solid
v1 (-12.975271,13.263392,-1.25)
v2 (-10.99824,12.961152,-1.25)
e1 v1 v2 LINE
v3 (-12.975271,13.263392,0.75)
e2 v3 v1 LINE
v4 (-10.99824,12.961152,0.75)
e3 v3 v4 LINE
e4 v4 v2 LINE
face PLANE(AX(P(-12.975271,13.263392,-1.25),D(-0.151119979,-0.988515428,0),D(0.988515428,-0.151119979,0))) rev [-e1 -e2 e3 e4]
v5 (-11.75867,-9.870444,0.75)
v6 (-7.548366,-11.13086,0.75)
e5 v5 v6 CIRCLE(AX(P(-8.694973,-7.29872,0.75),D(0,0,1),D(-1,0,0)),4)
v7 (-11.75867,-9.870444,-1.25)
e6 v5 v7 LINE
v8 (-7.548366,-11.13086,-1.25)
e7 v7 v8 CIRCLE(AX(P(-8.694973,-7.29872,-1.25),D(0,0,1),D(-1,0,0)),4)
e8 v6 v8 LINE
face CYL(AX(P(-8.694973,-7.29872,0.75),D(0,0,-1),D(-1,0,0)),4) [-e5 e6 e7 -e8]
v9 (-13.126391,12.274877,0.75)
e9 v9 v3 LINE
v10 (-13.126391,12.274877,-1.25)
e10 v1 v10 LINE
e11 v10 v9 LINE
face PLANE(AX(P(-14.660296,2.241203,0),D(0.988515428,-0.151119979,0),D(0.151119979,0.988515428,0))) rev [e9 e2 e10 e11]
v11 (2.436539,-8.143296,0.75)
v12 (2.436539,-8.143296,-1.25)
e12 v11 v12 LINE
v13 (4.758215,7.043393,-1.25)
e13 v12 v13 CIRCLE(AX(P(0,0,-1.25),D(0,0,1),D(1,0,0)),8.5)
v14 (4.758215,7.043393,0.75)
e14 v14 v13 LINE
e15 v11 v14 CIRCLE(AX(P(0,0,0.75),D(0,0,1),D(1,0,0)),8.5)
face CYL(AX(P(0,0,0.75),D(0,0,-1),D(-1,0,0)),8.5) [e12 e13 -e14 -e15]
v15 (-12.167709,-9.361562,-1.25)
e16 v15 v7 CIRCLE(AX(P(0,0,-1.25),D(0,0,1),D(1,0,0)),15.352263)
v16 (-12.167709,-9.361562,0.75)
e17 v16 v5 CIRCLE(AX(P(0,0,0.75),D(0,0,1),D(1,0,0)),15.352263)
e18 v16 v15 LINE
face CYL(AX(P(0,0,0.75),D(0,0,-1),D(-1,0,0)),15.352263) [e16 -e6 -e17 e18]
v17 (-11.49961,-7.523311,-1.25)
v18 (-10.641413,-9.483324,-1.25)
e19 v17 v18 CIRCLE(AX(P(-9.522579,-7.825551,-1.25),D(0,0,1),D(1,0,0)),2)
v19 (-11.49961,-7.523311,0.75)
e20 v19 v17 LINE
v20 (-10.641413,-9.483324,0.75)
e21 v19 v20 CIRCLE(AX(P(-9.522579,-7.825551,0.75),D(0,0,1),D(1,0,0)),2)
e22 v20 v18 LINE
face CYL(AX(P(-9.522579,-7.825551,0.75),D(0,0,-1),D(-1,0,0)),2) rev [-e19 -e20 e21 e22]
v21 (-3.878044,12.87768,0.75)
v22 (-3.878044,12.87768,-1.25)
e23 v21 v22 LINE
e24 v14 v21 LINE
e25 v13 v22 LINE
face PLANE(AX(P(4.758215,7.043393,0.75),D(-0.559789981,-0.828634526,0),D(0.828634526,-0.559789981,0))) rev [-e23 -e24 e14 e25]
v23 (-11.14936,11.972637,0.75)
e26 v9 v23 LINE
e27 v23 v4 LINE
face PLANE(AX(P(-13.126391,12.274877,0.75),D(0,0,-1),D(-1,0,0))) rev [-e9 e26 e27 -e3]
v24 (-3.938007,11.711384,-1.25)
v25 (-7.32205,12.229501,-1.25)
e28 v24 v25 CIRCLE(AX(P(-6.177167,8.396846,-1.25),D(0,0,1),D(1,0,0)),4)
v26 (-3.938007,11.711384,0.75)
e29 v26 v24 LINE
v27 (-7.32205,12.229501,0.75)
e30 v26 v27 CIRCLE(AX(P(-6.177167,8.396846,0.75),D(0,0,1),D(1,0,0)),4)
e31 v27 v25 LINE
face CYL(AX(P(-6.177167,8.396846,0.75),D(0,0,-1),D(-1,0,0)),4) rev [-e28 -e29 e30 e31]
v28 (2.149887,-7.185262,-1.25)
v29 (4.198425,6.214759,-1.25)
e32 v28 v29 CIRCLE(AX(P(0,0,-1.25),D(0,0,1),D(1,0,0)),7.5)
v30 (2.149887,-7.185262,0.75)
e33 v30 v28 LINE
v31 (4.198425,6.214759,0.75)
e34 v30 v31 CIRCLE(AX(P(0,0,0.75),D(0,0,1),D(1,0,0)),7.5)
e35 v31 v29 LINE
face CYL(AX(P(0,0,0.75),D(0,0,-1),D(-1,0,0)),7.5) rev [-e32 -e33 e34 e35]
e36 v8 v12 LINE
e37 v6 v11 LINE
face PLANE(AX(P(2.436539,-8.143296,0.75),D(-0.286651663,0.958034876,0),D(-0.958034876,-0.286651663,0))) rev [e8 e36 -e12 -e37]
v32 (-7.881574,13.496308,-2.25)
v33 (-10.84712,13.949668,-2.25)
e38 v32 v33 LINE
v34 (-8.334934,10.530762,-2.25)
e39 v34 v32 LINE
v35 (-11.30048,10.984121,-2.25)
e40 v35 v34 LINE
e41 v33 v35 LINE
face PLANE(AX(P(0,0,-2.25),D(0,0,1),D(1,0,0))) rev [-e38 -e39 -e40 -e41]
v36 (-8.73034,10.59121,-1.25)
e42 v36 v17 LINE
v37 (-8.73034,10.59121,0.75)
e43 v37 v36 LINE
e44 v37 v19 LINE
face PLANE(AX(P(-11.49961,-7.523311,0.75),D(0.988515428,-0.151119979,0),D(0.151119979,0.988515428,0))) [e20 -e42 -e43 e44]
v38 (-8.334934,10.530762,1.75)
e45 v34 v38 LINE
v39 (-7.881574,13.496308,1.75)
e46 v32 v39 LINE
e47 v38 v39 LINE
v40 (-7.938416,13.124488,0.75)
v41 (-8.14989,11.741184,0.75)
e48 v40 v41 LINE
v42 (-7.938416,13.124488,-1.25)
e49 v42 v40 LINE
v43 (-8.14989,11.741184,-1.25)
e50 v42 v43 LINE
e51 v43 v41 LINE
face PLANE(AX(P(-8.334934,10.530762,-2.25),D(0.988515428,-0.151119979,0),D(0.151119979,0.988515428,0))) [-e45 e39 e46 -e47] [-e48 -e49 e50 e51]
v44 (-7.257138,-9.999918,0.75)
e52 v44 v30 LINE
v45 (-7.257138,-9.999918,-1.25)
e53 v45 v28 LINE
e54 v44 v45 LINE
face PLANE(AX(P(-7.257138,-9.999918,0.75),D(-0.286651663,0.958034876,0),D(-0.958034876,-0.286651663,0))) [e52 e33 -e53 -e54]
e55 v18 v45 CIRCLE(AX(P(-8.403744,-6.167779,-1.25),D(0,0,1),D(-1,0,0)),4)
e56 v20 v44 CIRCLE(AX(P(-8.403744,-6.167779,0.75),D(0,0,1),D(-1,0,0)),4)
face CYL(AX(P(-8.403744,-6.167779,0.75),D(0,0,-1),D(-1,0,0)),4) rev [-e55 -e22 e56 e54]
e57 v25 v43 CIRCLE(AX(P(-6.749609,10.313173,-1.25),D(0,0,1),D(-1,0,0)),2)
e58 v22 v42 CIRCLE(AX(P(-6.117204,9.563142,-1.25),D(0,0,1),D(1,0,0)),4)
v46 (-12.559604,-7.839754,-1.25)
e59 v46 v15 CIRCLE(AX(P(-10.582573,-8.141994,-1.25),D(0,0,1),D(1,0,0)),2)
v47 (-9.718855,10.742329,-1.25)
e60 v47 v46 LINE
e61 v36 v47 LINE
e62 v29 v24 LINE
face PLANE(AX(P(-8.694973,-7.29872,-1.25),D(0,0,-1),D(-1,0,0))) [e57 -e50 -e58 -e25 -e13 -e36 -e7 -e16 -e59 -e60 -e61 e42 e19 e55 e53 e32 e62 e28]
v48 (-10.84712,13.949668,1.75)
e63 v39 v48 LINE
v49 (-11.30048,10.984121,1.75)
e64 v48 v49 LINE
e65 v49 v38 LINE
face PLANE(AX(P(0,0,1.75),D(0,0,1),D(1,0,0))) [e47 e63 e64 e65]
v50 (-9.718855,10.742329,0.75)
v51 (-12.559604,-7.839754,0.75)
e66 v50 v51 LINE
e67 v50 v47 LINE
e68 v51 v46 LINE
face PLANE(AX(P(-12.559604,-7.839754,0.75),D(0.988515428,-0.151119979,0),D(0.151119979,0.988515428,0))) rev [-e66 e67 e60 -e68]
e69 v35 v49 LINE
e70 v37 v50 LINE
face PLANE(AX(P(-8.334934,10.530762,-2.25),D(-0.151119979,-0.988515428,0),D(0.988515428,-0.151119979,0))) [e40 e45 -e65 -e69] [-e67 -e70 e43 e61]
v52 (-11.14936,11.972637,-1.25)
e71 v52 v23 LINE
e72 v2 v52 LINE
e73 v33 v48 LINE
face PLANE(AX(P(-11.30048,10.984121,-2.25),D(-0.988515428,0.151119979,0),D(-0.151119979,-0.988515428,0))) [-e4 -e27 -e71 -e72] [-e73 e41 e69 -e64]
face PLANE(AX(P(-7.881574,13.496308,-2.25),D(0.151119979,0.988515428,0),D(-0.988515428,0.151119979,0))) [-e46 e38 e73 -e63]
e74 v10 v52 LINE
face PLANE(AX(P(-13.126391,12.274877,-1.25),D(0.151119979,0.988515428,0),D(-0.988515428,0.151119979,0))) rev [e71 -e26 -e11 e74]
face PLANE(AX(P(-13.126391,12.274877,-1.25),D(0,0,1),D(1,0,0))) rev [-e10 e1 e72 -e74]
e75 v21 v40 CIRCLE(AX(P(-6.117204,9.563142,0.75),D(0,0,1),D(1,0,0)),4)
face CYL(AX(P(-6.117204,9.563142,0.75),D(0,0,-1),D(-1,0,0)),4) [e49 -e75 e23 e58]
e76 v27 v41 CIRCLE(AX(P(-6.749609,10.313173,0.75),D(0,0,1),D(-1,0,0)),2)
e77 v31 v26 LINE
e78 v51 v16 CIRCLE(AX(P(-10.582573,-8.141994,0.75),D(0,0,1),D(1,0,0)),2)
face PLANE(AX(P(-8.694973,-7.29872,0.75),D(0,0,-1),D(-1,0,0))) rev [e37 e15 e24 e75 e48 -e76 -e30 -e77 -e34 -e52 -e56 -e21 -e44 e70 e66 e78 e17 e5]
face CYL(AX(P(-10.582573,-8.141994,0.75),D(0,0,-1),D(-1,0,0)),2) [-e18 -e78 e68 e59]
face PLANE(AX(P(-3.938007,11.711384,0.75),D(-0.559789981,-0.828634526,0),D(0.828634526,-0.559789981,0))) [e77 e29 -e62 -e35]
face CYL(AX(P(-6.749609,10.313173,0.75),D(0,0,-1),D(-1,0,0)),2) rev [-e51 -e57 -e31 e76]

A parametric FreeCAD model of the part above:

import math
import FreeCAD as App
import Part
import Sketcher
Q = App.Units.Quantity

doc = App.newDocument("Part")
body = doc.addObject("PartDesign::Body", "Body")

# Sketch on XY plane
sketch1 = body.newObject("Sketcher::SketchObject", "Sketch")
sketch1.AttachmentSupport = (doc.getObject("XY_Plane"), [""])
sketch1.MapMode = "FlatFace"
sketch1.AttachmentOffset = App.Placement(App.Vector(0, 0, -1.25), App.Rotation())
sketch1.addGeometry(Part.LineSegment(App.Vector(-7.548366, -11.13086, 0), App.Vector(2.436539, -8.143296, 0)), False)
sketch1.addGeometry(Part.ArcOfCircle(Part.Circle(App.Vector(0, 0, 0), App.Vector(0, 0, 1), 8.5), math.radians(-73.342398), math.radians(55.958725)), False)
sketch1.addGeometry(Part.LineSegment(App.Vector(4.758215, 7.043393, 0), App.Vector(-3.878044, 12.87768, 0)), False)
sketch1.addGeometry(Part.ArcOfCircle(Part.Circle(App.Vector(-6.117204, 9.563142, 0), App.Vector(0, 0, 1), 4), math.radians(55.958725), math.radians(122.605611)), False)
sketch1.addGeometry(Part.ArcOfCircle(Part.Circle(App.Vector(0, -0.000001, 0), App.Vector(0, 0, 1), 15.352263), math.radians(122.605611), math.radians(125.042453)), False)
sketch1.addGeometry(Part.ArcOfCircle(Part.Circle(App.Vector(-7.666645, 10.931856, 0), App.Vector(0, 0, 1), 2), math.radians(125.042453), math.radians(171.308163)), False)
sketch1.addGeometry(Part.LineSegment(App.Vector(-9.643676, 11.234096, 0), App.Vector(-12.559604, -7.839754, 0)), False)
sketch1.addGeometry(Part.ArcOfCircle(Part.Circle(App.Vector(-10.582573, -8.141994, 0), App.Vector(0, 0, 1), 2), math.radians(171.308163), math.radians(217.573874)), False)
sketch1.addGeometry(Part.ArcOfCircle(Part.Circle(App.Vector(0.000002, 0.000001, 0), App.Vector(0, 0, 1), 15.352265), math.radians(-142.426126), math.radians(-139.989285)), False)
sketch1.addGeometry(Part.ArcOfCircle(Part.Circle(App.Vector(-8.694973, -7.29872, 0), App.Vector(0, 0, 1), 4), math.radians(-139.989284), math.radians(-73.342398)), False)
sketch1.addGeometry(Part.ArcOfCircle(Part.Circle(App.Vector(-8.403744, -6.167779, 0), App.Vector(0, 0, 1), 4), math.radians(-124.015508), math.radians(-73.342398)), False)
sketch1.addGeometry(Part.ArcOfCircle(Part.Circle(App.Vector(-9.522579, -7.825551, 0), App.Vector(0, 0, 1), 2), math.radians(171.308163), math.radians(235.984492)), False)
sketch1.addGeometry(Part.LineSegment(App.Vector(-11.49961, -7.523311, 0), App.Vector(-8.72664, 10.615413, 0)), False)
sketch1.addGeometry(Part.ArcOfCircle(Part.Circle(App.Vector(-6.749609, 10.313173, 0), App.Vector(0, 0, 1), 2), math.radians(106.631835), math.radians(171.308163)), False)
sketch1.addGeometry(Part.ArcOfCircle(Part.Circle(App.Vector(-6.177167, 8.396846, 0), App.Vector(0, 0, 1), 4), math.radians(55.958725), math.radians(106.631835)), False)
sketch1.addGeometry(Part.LineSegment(App.Vector(-3.938007, 11.711384, 0), App.Vector(4.198425, 6.214759, 0)), False)
sketch1.addGeometry(Part.ArcOfCircle(Part.Circle(App.Vector(0, 0, 0), App.Vector(0, 0, 1), 7.5), math.radians(-73.342398), math.radians(55.958725)), False)
sketch1.addGeometry(Part.LineSegment(App.Vector(2.149887, -7.185262, 0), App.Vector(-7.257138, -9.999918, 0)), False)
sketch1.addConstraint(Sketcher.Constraint("Tangent", 0, 2, 1, 1))
sketch1.addConstraint(Sketcher.Constraint("Tangent", 1, 2, 2, 1))
sketch1.addConstraint(Sketcher.Constraint("Tangent", 2, 2, 3, 1))
sketch1.addConstraint(Sketcher.Constraint("Tangent", 3, 2, 4, 1))
sketch1.addConstraint(Sketcher.Constraint("Tangent", 4, 2, 5, 1))
sketch1.addConstraint(Sketcher.Constraint("Tangent", 5, 2, 6, 1))
sketch1.addConstraint(Sketcher.Constraint("Tangent", 6, 2, 7, 1))
sketch1.addConstraint(Sketcher.Constraint("Tangent", 7, 2, 8, 1))
sketch1.addConstraint(Sketcher.Constraint("Tangent", 8, 2, 9, 1))
sketch1.addConstraint(Sketcher.Constraint("Tangent", 9, 2, 0, 1))
sketch1.addConstraint(Sketcher.Constraint("Tangent", 10, 1, 11, 2))
sketch1.addConstraint(Sketcher.Constraint("Tangent", 11, 1, 12, 1))
sketch1.addConstraint(Sketcher.Constraint("Tangent", 12, 2, 13, 2))
sketch1.addConstraint(Sketcher.Constraint("Tangent", 13, 1, 14, 2))
sketch1.addConstraint(Sketcher.Constraint("Tangent", 14, 1, 15, 1))
sketch1.addConstraint(Sketcher.Constraint("Tangent", 15, 2, 16, 2))
sketch1.addConstraint(Sketcher.Constraint("Tangent", 16, 1, 17, 1))
sketch1.addConstraint(Sketcher.Constraint("Tangent", 17, 2, 10, 2))
sketch1.addConstraint(Sketcher.Constraint("Coincident", 1, 3, -1, 1))
sketch1.addConstraint(Sketcher.Constraint("Coincident", 4, 3, -1, 1))
sketch1.addConstraint(Sketcher.Constraint("Coincident", 8, 3, -1, 1))
sketch1.addConstraint(Sketcher.Constraint("Coincident", 16, 3, -1, 1))
sketch1.addConstraint(Sketcher.Constraint("Equal", 5, 7))
sketch1.addConstraint(Sketcher.Constraint("Equal", 4, 8))
sketch1.addConstraint(Sketcher.Constraint("Equal", 3, 9))
sketch1.addConstraint(Sketcher.Constraint("Equal", 9, 10))
sketch1.addConstraint(Sketcher.Constraint("Equal", 7, 11))
sketch1.addConstraint(Sketcher.Constraint("Equal", 11, 13))
sketch1.addConstraint(Sketcher.Constraint("Equal", 10, 14))
sketch1.addConstraint(Sketcher.Constraint("Parallel", 6, 12))
sketch1.addConstraint(Sketcher.Constraint("Parallel", 2, 15))
sketch1.addConstraint(Sketcher.Constraint("Parallel", 0, 17))
sketch1.addConstraint(Sketcher.Constraint("Equal", 15, 17))
sketch1.addConstraint(Sketcher.Constraint("Radius", 3, Q("4 mm")))
sketch1.addConstraint(Sketcher.Constraint("Radius", 5, Q("2 mm")))
sketch1.addConstraint(Sketcher.Constraint("Radius", 1, Q("8.5 mm")))
sketch1.addConstraint(Sketcher.Constraint("Radius", 16, Q("7.5 mm")))
sketch1.addConstraint(Sketcher.Constraint("Radius", 4, Q("15.352263 mm")))
sketch1.addConstraint(Sketcher.Constraint("DistanceY", -1, 1, 13, 1, Q("12.229501 mm")))
sketch1.addConstraint(Sketcher.Constraint("DistanceX", 7, 3, 9, 3, Q("1.8876 mm")))
sketch1.addConstraint(Sketcher.Constraint("DistanceX", 5, 3, 2, 2, Q("3.788601 mm")))
sketch1.addConstraint(Sketcher.Constraint("DistanceY", 3, 3, 3, 2, Q("3.369599 mm")))
sketch1.addConstraint(Sketcher.Constraint("DistanceY", 9, 2, 7, 2, Q("1.769298 mm")))
sketch1.addConstraint(Sketcher.Constraint("DistanceX", 7, 2, 11, 1, Q("0.668099 mm")))
pad1 = body.newObject("PartDesign::Pad", "Pad")
pad1.Profile = sketch1
pad1.Length = 2

# Sketch on XY plane
sketch2 = body.newObject("Sketcher::SketchObject", "Sketch001")
sketch2.AttachmentSupport = (doc.getObject("XY_Plane"), [""])
sketch2.MapMode = "FlatFace"
sketch2.AttachmentOffset = App.Placement(App.Vector(0, 0, 0.75), App.Rotation())
sketch2.addGeometry(Part.LineSegment(App.Vector(-11.30048, 10.984121, 0), App.Vector(-8.334934, 10.530762, 0)), False)
sketch2.addGeometry(Part.LineSegment(App.Vector(-8.334934, 10.530762, 0), App.Vector(-7.881574, 13.496308, 0)), False)
sketch2.addGeometry(Part.LineSegment(App.Vector(-7.881574, 13.496308, 0), App.Vector(-10.84712, 13.949668, 0)), False)
sketch2.addGeometry(Part.LineSegment(App.Vector(-10.84712, 13.949668, 0), App.Vector(-11.30048, 10.984121, 0)), False)
sketch2.addConstraint(Sketcher.Constraint("Coincident", 0, 2, 1, 1))
sketch2.addConstraint(Sketcher.Constraint("Coincident", 1, 2, 2, 1))
sketch2.addConstraint(Sketcher.Constraint("Coincident", 2, 2, 3, 1))
sketch2.addConstraint(Sketcher.Constraint("Coincident", 3, 2, 0, 1))
sketch2.addConstraint(Sketcher.Constraint("Perpendicular", 0, 1))
sketch2.addConstraint(Sketcher.Constraint("Perpendicular", 1, 2))
sketch2.addConstraint(Sketcher.Constraint("Perpendicular", 2, 3))
sketch2.addConstraint(Sketcher.Constraint("Equal", 0, 1))
sketch2.addConstraint(Sketcher.Constraint("Distance", 0, Q("3 mm")))
sketch2.addConstraint(Sketcher.Constraint("DistanceY", -1, 1, 0, 2, Q("10.530762 mm")))
sketch2.addConstraint(Sketcher.Constraint("DistanceX", 2, 2, -1, 1, Q("10.84712 mm")))
sketch2.addConstraint(Sketcher.Constraint("DistanceX", 3, 2, -1, 1, Q("11.30048 mm")))
pad2 = body.newObject("PartDesign::Pad", "Pad001")
pad2.Profile = sketch2
pad2.Type = "TwoLengths"
pad2.Length = 1
pad2.Length2 = 3

# Sketch on an angled plane
sketch3 = body.newObject("Sketcher::SketchObject", "Sketch002")
sketch3.Placement = App.Placement(App.Vector(-12.683265, 1.938963, 0), App.Rotation(App.Vector(0, 0, 1), App.Vector(0.151119979, 0.988515428, 0), App.Vector(-0.988515428, 0.151119979, 0), "ZXY"))
sketch3.addGeometry(Part.LineSegment(App.Vector(-1.25, 11.150245, 0), App.Vector(-1.25, 10.150245, 0)), False)
sketch3.addGeometry(Part.LineSegment(App.Vector(-1.25, 10.150245, 0), App.Vector(0.75, 10.150245, 0)), False)
sketch3.addGeometry(Part.LineSegment(App.Vector(0.75, 10.150245, 0), App.Vector(0.75, 11.150245, 0)), False)
sketch3.addGeometry(Part.LineSegment(App.Vector(0.75, 11.150245, 0), App.Vector(-1.25, 11.150245, 0)), False)
sketch3.addConstraint(Sketcher.Constraint("Coincident", 0, 2, 1, 1))
sketch3.addConstraint(Sketcher.Constraint("Coincident", 1, 2, 2, 1))
sketch3.addConstraint(Sketcher.Constraint("Coincident", 2, 2, 3, 1))
sketch3.addConstraint(Sketcher.Constraint("Coincident", 3, 2, 0, 1))
sketch3.addConstraint(Sketcher.Constraint("Vertical", 0))
sketch3.addConstraint(Sketcher.Constraint("Horizontal", 1))
sketch3.addConstraint(Sketcher.Constraint("Vertical", 2))
sketch3.addConstraint(Sketcher.Constraint("Horizontal", 3))
sketch3.addConstraint(Sketcher.Constraint("DistanceX", 1, 1, 1, 2, Q("2 mm")))
sketch3.addConstraint(Sketcher.Constraint("DistanceY", 0, 2, 0, 1, Q("1 mm")))
sketch3.addConstraint(Sketcher.Constraint("DistanceX", 0, 2, -1, 1, Q("1.25 mm")))
sketch3.addConstraint(Sketcher.Constraint("DistanceY", -1, 1, 0, 2, Q("10.150245 mm")))
pad3 = body.newObject("PartDesign::Pad", "Pad002")
pad3.Profile = sketch3
pad3.Length = 2

doc.recompute()
